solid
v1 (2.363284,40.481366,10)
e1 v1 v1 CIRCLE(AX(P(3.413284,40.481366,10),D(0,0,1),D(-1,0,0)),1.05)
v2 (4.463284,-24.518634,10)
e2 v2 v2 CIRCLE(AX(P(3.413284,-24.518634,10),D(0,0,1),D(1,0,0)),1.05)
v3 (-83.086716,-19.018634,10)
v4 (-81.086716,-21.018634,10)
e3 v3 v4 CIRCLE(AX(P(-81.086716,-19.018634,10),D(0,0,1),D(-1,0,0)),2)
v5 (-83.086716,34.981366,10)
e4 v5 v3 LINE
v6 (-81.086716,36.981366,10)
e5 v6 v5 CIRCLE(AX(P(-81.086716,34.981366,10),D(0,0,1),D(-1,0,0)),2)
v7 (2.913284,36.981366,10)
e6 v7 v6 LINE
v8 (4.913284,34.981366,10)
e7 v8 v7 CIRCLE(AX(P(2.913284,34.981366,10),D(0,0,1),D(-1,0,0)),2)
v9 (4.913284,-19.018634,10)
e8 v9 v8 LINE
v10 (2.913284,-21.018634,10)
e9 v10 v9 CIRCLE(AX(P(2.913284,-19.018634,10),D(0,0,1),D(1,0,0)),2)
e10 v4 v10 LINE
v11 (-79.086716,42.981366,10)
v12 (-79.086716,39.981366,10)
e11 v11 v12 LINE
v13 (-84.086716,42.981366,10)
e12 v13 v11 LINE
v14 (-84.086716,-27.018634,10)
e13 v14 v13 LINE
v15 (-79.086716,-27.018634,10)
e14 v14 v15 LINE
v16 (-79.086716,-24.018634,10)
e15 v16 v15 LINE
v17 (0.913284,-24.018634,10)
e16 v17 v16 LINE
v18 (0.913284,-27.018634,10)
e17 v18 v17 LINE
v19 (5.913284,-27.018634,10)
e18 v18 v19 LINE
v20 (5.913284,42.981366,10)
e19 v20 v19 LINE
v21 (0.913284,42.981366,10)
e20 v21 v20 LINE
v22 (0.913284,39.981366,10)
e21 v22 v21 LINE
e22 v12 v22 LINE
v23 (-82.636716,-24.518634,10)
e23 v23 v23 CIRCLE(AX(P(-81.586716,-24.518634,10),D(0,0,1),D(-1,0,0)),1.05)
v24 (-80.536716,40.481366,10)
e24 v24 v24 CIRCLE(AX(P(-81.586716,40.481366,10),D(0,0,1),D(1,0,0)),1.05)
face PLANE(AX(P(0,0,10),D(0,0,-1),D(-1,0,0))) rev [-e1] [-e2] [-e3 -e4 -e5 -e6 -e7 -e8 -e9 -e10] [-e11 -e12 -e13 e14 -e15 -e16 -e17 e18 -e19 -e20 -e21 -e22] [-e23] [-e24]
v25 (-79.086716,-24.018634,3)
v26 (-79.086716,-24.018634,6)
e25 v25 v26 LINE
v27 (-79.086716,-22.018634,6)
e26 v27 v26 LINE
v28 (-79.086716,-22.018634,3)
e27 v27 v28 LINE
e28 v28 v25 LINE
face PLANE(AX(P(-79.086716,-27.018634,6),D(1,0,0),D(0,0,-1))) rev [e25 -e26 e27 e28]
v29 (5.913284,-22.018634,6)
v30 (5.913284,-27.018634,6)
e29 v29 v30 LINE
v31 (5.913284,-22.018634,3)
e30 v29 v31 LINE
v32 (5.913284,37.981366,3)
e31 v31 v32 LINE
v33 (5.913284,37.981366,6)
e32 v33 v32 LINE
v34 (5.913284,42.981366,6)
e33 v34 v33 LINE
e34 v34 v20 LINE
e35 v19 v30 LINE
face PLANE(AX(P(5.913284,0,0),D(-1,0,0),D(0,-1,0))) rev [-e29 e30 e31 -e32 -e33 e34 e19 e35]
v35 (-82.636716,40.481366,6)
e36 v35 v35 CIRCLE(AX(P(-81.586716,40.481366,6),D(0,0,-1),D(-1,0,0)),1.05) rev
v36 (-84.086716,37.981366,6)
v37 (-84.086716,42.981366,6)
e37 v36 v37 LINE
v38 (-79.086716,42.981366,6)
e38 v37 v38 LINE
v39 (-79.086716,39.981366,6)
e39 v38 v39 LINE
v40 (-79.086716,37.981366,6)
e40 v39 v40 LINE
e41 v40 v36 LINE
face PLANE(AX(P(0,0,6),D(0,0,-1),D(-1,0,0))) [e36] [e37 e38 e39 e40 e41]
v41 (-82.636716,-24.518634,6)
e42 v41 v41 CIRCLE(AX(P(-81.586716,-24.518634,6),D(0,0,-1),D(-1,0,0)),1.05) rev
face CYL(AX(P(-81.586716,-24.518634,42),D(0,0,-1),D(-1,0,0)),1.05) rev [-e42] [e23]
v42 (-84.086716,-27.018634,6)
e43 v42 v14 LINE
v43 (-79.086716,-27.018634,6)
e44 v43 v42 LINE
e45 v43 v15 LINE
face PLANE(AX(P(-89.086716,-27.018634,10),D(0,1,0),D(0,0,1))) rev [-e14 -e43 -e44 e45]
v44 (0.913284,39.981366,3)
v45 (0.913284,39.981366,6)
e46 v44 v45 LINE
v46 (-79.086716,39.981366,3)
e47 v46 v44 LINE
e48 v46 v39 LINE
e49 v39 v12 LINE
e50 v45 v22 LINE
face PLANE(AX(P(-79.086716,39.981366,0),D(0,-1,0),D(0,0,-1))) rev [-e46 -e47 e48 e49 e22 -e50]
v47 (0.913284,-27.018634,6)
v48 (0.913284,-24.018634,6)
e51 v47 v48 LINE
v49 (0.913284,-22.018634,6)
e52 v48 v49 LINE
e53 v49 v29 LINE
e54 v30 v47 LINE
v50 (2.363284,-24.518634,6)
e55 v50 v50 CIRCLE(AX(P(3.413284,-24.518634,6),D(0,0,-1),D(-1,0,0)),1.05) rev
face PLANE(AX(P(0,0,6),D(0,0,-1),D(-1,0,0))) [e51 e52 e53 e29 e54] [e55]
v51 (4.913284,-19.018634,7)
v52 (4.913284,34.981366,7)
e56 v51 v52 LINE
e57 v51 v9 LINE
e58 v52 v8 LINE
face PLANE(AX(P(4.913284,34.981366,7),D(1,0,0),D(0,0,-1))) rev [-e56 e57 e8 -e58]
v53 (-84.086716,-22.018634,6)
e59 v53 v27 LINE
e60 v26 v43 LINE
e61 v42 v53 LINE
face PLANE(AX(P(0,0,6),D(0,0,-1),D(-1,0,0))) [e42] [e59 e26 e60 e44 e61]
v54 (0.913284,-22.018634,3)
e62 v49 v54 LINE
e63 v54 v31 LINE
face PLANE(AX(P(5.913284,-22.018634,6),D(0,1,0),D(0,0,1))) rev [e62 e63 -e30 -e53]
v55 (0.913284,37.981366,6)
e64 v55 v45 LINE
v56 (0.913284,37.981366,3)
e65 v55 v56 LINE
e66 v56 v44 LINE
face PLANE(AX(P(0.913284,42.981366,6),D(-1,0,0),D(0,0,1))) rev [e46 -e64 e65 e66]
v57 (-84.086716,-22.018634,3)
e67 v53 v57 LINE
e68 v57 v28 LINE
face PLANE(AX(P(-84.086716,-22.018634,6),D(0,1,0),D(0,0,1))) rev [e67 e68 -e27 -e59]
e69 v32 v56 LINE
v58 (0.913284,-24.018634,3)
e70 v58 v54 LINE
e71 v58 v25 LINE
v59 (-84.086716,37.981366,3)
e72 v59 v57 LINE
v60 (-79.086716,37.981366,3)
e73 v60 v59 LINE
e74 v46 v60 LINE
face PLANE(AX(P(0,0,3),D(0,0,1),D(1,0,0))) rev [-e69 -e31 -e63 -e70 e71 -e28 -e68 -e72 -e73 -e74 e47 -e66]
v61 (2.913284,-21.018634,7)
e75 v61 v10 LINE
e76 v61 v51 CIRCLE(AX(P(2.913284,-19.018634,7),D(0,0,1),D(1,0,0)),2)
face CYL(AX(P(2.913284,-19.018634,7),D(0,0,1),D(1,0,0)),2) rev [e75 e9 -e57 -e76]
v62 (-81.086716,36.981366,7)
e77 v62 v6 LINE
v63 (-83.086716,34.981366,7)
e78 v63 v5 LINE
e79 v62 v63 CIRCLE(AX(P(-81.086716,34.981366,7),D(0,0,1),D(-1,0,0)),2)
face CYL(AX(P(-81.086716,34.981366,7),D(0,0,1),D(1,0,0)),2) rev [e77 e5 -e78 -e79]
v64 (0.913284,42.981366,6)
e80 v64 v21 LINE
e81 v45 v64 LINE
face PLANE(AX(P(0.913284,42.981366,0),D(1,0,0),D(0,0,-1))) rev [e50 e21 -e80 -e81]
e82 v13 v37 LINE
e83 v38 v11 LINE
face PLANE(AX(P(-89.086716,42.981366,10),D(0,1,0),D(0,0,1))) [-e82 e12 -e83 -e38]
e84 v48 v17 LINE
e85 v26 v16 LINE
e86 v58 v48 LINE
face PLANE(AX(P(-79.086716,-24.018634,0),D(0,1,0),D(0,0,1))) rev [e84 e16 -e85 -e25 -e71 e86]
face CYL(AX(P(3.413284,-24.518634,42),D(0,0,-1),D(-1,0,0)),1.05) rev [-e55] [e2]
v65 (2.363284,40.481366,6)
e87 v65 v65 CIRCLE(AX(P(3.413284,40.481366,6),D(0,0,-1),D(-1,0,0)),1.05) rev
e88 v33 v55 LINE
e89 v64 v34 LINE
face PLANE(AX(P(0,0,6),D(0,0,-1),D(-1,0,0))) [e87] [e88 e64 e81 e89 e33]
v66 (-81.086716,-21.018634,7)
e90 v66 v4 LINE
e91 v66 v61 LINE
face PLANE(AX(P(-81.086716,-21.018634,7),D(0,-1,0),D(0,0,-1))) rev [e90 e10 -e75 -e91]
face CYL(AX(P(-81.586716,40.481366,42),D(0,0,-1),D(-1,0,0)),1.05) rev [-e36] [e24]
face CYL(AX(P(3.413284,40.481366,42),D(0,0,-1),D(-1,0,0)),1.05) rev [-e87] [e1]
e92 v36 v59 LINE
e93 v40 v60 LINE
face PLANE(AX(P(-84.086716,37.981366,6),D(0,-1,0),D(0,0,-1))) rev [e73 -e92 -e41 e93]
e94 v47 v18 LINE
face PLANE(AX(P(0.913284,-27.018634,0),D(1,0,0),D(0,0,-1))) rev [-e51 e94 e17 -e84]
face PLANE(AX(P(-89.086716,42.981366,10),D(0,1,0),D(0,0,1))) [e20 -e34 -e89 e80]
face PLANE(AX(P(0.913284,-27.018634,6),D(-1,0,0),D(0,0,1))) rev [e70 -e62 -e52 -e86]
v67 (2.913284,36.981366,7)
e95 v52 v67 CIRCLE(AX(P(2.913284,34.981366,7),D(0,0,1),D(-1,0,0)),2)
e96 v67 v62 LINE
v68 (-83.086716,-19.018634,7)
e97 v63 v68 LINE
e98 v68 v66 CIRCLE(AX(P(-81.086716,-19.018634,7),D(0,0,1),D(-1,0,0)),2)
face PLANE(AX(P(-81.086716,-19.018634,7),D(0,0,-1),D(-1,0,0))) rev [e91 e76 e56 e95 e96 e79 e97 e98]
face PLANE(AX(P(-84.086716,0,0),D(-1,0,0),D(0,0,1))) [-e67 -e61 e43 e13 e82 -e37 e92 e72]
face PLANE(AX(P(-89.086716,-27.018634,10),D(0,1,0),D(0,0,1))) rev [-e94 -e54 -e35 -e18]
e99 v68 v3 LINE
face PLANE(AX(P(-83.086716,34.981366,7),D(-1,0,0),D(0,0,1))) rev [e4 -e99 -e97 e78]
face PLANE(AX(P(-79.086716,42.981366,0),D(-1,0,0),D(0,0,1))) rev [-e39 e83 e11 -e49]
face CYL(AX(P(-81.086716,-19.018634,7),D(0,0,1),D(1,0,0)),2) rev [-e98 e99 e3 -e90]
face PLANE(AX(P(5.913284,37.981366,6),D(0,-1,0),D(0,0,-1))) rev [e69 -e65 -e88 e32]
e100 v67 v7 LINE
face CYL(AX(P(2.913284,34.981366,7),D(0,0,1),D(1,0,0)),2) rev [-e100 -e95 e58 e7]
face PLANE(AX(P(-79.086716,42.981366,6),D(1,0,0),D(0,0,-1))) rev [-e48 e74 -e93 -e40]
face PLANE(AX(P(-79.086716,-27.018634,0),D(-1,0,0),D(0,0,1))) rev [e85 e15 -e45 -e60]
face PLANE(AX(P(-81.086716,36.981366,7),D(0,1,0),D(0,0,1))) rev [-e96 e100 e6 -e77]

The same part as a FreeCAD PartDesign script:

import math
import FreeCAD as App
import Part
import Sketcher
Q = App.Units.Quantity


def add_polygon(sketch, points):
    """Adds a closed chain of lines whose ends are joined by coincident constraints."""
    first, n = sketch.GeometryCount, len(points)
    for a, b in zip(points, points[1:] + points[:1]):
        sketch.addGeometry(Part.LineSegment(App.Vector(*a, 0), App.Vector(*b, 0)), False)
    for i in range(n):
        sketch.addConstraint(Sketcher.Constraint("Coincident", first + i, 2, first + (i + 1) % n, 1))

doc = App.newDocument("Part")
body = doc.addObject("PartDesign::Body", "Body")

# Sketch on XY plane
sketch1 = body.newObject("Sketcher::SketchObject", "Sketch")
sketch1.AttachmentSupport = (doc.getObject("XY_Plane"), [""])
sketch1.MapMode = "FlatFace"
add_polygon(sketch1, [(-89.086716, 42.981366), (-89.086716, -27.018634), (10.913284, -27.018634), (10.913284, 42.981366)])  # lines 0-3
sketch1.addConstraint(Sketcher.Constraint("Vertical", 0))
sketch1.addConstraint(Sketcher.Constraint("Horizontal", 1))
sketch1.addConstraint(Sketcher.Constraint("Vertical", 2))
sketch1.addConstraint(Sketcher.Constraint("Horizontal", 3))
sketch1.addConstraint(Sketcher.Constraint("DistanceX", 1, 1, 1, 2, Q("100 mm")))
sketch1.addConstraint(Sketcher.Constraint("DistanceY", 0, 2, 0, 1, Q("70 mm")))
sketch1.addConstraint(Sketcher.Constraint("DistanceX", 0, 2, -1, 1, Q("89.086716 mm")))
sketch1.addConstraint(Sketcher.Constraint("DistanceY", 0, 2, -1, 1, Q("27.018634 mm")))
pad1 = body.newObject("PartDesign::Pad", "Pad")
pad1.Profile = sketch1
pad1.Length = 10

# Sketch on XY plane
sketch2 = body.newObject("Sketcher::SketchObject", "Sketch001")
sketch2.AttachmentSupport = (doc.getObject("XY_Plane"), [""])
sketch2.MapMode = "FlatFace"
sketch2.AttachmentOffset = App.Placement(App.Vector(0, 0, 10), App.Rotation())
add_polygon(sketch2, [(0.913284, 42.981366), (0.913284, 37.981366), (5.913284, 37.981366), (5.913284, 42.981366)])  # lines 0-3
add_polygon(sketch2, [(-84.086716, 42.981366), (-84.086716, 37.981366), (-79.086716, 37.981366), (-79.086716, 42.981366)])  # lines 4-7
add_polygon(sketch2, [(-84.086716, -22.018634), (-84.086716, -27.018634), (-79.086716, -27.018634), (-79.086716, -22.018634)])  # lines 8-11
add_polygon(sketch2, [(0.913284, -22.018634), (0.913284, -27.018634), (5.913284, -27.018634), (5.913284, -22.018634)])  # lines 12-15
sketch2.addConstraint(Sketcher.Constraint("Vertical", 0))
sketch2.addConstraint(Sketcher.Constraint("Horizontal", 1))
sketch2.addConstraint(Sketcher.Constraint("Vertical", 2))
sketch2.addConstraint(Sketcher.Constraint("Horizontal", 3))
sketch2.addConstraint(Sketcher.Constraint("Vertical", 4))
sketch2.addConstraint(Sketcher.Constraint("Horizontal", 5))
sketch2.addConstraint(Sketcher.Constraint("Vertical", 6))
sketch2.addConstraint(Sketcher.Constraint("Horizontal", 7))
sketch2.addConstraint(Sketcher.Constraint("Vertical", 8))
sketch2.addConstraint(Sketcher.Constraint("Horizontal", 9))
sketch2.addConstraint(Sketcher.Constraint("Vertical", 10))
sketch2.addConstraint(Sketcher.Constraint("Horizontal", 11))
sketch2.addConstraint(Sketcher.Constraint("Vertical", 12))
sketch2.addConstraint(Sketcher.Constraint("Horizontal", 13))
sketch2.addConstraint(Sketcher.Constraint("Vertical", 14))
sketch2.addConstraint(Sketcher.Constraint("Horizontal", 15))
sketch2.addConstraint(Sketcher.Constraint("Horizontal", 1, 2, 4, 2))
sketch2.addConstraint(Sketcher.Constraint("Horizontal", 3, 2, 6, 2))
sketch2.addConstraint(Sketcher.Constraint("Horizontal", 9, 2, 12, 2))
sketch2.addConstraint(Sketcher.Constraint("Horizontal", 11, 2, 14, 2))
sketch2.addConstraint(Sketcher.Constraint("Vertical", 7, 2, 8, 2))
sketch2.addConstraint(Sketcher.Constraint("Vertical", 6, 2, 9, 2))
sketch2.addConstraint(Sketcher.Constraint("Vertical", 3, 2, 12, 2))
sketch2.addConstraint(Sketcher.Constraint("Vertical", 2, 2, 13, 2))
sketch2.addConstraint(Sketcher.Constraint("Equal", 3, 5))
sketch2.addConstraint(Sketcher.Constraint("Equal", 15, 0))
sketch2.addConstraint(Sketcher.Constraint("Equal", 6, 8))
sketch2.addConstraint(Sketcher.Constraint("DistanceX", 1, 1, 1, 2, Q("5 mm")))
sketch2.addConstraint(Sketcher.Constraint("DistanceX", 4, 2, 0, 2, Q("85 mm")))
sketch2.addConstraint(Sketcher.Constraint("DistanceY", 8, 2, 4, 2, Q("65 mm")))
sketch2.addConstraint(Sketcher.Constraint("DistanceX", -1, 1, 0, 2, Q("0.913284 mm")))
sketch2.addConstraint(Sketcher.Constraint("DistanceY", -1, 1, 0, 2, Q("37.981366 mm")))
pocket1 = body.newObject("PartDesign::Pocket", "Pocket")
pocket1.Profile = sketch2
pocket1.Length = 5

# Sketch on XY plane
sketch3 = body.newObject("Sketcher::SketchObject", "Sketch002")
sketch3.AttachmentSupport = (doc.getObject("XY_Plane"), [""])
sketch3.MapMode = "FlatFace"
add_polygon(sketch3, [(-79.086716, 42.981366), (-79.086716, 37.981366), (-84.086716, 37.981366), (-84.086716, 42.981366)])  # lines 0-3
add_polygon(sketch3, [(5.913284, 42.981366), (5.913284, 37.981366), (0.913284, 37.981366), (0.913284, 42.981366)])  # lines 4-7
add_polygon(sketch3, [(-79.086716, -22.018634), (-79.086716, -27.018634), (-84.086716, -27.018634), (-84.086716, -22.018634)])  # lines 8-11
add_polygon(sketch3, [(5.913284, -22.018634), (5.913284, -27.018634), (0.913284, -27.018634), (0.913284, -22.018634)])  # lines 12-15
sketch3.addConstraint(Sketcher.Constraint("Vertical", 0))
sketch3.addConstraint(Sketcher.Constraint("Horizontal", 1))
sketch3.addConstraint(Sketcher.Constraint("Vertical", 2))
sketch3.addConstraint(Sketcher.Constraint("Horizontal", 3))
sketch3.addConstraint(Sketcher.Constraint("Vertical", 4))
sketch3.addConstraint(Sketcher.Constraint("Horizontal", 5))
sketch3.addConstraint(Sketcher.Constraint("Vertical", 6))
sketch3.addConstraint(Sketcher.Constraint("Horizontal", 7))
sketch3.addConstraint(Sketcher.Constraint("Vertical", 8))
sketch3.addConstraint(Sketcher.Constraint("Horizontal", 9))
sketch3.addConstraint(Sketcher.Constraint("Vertical", 10))
sketch3.addConstraint(Sketcher.Constraint("Horizontal", 11))
sketch3.addConstraint(Sketcher.Constraint("Vertical", 12))
sketch3.addConstraint(Sketcher.Constraint("Horizontal", 13))
sketch3.addConstraint(Sketcher.Constraint("Vertical", 14))
sketch3.addConstraint(Sketcher.Constraint("Horizontal", 15))
sketch3.addConstraint(Sketcher.Constraint("Horizontal", 1, 2, 4, 2))
sketch3.addConstraint(Sketcher.Constraint("Horizontal", 3, 2, 6, 2))
sketch3.addConstraint(Sketcher.Constraint("Horizontal", 9, 2, 12, 2))
sketch3.addConstraint(Sketcher.Constraint("Horizontal", 11, 2, 14, 2))
sketch3.addConstraint(Sketcher.Constraint("Vertical", 3, 2, 8, 2))
sketch3.addConstraint(Sketcher.Constraint("Vertical", 2, 2, 9, 2))
sketch3.addConstraint(Sketcher.Constraint("Vertical", 7, 2, 12, 2))
sketch3.addConstraint(Sketcher.Constraint("Vertical", 6, 2, 13, 2))
sketch3.addConstraint(Sketcher.Constraint("Equal", 3, 5))
sketch3.addConstraint(Sketcher.Constraint("Equal", 15, 0))
sketch3.addConstraint(Sketcher.Constraint("Equal", 6, 8))
sketch3.addConstraint(Sketcher.Constraint("DistanceX", 1, 2, 1, 1, Q("5 mm")))
sketch3.addConstraint(Sketcher.Constraint("DistanceX", 0, 2, 4, 2, Q("85 mm")))
sketch3.addConstraint(Sketcher.Constraint("DistanceY", 8, 2, 0, 2, Q("65 mm")))
sketch3.addConstraint(Sketcher.Constraint("DistanceX", 0, 2, -1, 1, Q("79.086716 mm")))
sketch3.addConstraint(Sketcher.Constraint("DistanceY", -1, 1, 0, 2, Q("37.981366 mm")))
pocket2 = body.newObject("PartDesign::Pocket", "Pocket001")
pocket2.Profile = sketch3
pocket2.Length = 3
pocket2.Reversed = True

# Sketch on XY plane
sketch4 = body.newObject("Sketcher::SketchObject", "Sketch003")
sketch4.AttachmentSupport = (doc.getObject("XY_Plane"), [""])
sketch4.MapMode = "FlatFace"
sketch4.addGeometry(Part.Circle(App.Vector(3.413284, 40.481366, 0), App.Vector(0, 0, 1), 1.05), False)
sketch4.addGeometry(Part.Circle(App.Vector(-81.586716, 40.481366, 0), App.Vector(0, 0, 1), 1.05), False)
sketch4.addGeometry(Part.Circle(App.Vector(-81.586716, -24.518634, 0), App.Vector(0, 0, 1), 1.05), False)
sketch4.addGeometry(Part.Circle(App.Vector(3.413284, -24.518634, 0), App.Vector(0, 0, 1), 1.05), False)
sketch4.addConstraint(Sketcher.Constraint("Equal", 0, 1))
sketch4.addConstraint(Sketcher.Constraint("Equal", 1, 2))
sketch4.addConstraint(Sketcher.Constraint("Equal", 2, 3))
sketch4.addConstraint(Sketcher.Constraint("Horizontal", 0, 3, 1, 3))
sketch4.addConstraint(Sketcher.Constraint("Horizontal", 2, 3, 3, 3))
sketch4.addConstraint(Sketcher.Constraint("Vertical", 1, 3, 2, 3))
sketch4.addConstraint(Sketcher.Constraint("Vertical", 0, 3, 3, 3))
sketch4.addConstraint(Sketcher.Constraint("Diameter", 0, Q("2.1 mm")))
sketch4.addConstraint(Sketcher.Constraint("DistanceX", 1, 3, 0, 3, Q("85 mm")))
sketch4.addConstraint(Sketcher.Constraint("DistanceY", 2, 3, 1, 3, Q("65 mm")))
sketch4.addConstraint(Sketcher.Constraint("DistanceX", -1, 1, 0, 3, Q("3.413284 mm")))
sketch4.addConstraint(Sketcher.Constraint("DistanceY", -1, 1, 0, 3, Q("40.481366 mm")))
pocket3 = body.newObject("PartDesign::Pocket", "Pocket002")
pocket3.Profile = sketch4
pocket3.Length = 42
pocket3.Reversed = True

# Sketch on XY plane
sketch5 = body.newObject("Sketcher::SketchObject", "Sketch004")
sketch5.AttachmentSupport = (doc.getObject("XY_Plane"), [""])
sketch5.MapMode = "FlatFace"
add_polygon(sketch5, [(-89.086716, 42.981366), (-89.086716, -27.018634), (10.913284, -27.018634), (10.913284, 42.981366)])  # lines 0-3
sketch5.addConstraint(Sketcher.Constraint("Vertical", 0))
sketch5.addConstraint(Sketcher.Constraint("Horizontal", 1))
sketch5.addConstraint(Sketcher.Constraint("Vertical", 2))
sketch5.addConstraint(Sketcher.Constraint("Horizontal", 3))
sketch5.addConstraint(Sketcher.Constraint("DistanceX", 1, 1, 1, 2, Q("100 mm")))
sketch5.addConstraint(Sketcher.Constraint("DistanceY", 0, 2, 0, 1, Q("70 mm")))
sketch5.addConstraint(Sketcher.Constraint("DistanceX", 0, 2, -1, 1, Q("89.086716 mm")))
sketch5.addConstraint(Sketcher.Constraint("DistanceY", 0, 2, -1, 1, Q("27.018634 mm")))
pocket4 = body.newObject("PartDesign::Pocket", "Pocket003")
pocket4.Profile = sketch5
pocket4.Length = 3
pocket4.Reversed = True

# Sketch on YZ plane
sketch6 = body.newObject("Sketcher::SketchObject", "Sketch005")
sketch6.AttachmentSupport = (doc.getObject("YZ_Plane"), [""])
sketch6.MapMode = "FlatFace"
sketch6.AttachmentOffset = App.Placement(App.Vector(0, 0, 10.913284), App.Rotation())
add_polygon(sketch6, [(42.981366, 10), (-27.018634, 10), (-27.018634, 3), (42.981366, 3)])  # lines 0-3
sketch6.addConstraint(Sketcher.Constraint("Horizontal", 0))
sketch6.addConstraint(Sketcher.Constraint("Vertical", 1))
sketch6.addConstraint(Sketcher.Constraint("Horizontal", 2))
sketch6.addConstraint(Sketcher.Constraint("Vertical", 3))
sketch6.addConstraint(Sketcher.Constraint("DistanceX", 0, 2, 0, 1, Q("70 mm")))
sketch6.addConstraint(Sketcher.Constraint("DistanceY", 1, 2, 1, 1, Q("7 mm")))
sketch6.addConstraint(Sketcher.Constraint("DistanceY", -1, 1, 0, 2, Q("10 mm")))
sketch6.addConstraint(Sketcher.Constraint("DistanceX", 0, 2, -1, 1, Q("27.018634 mm")))
pocket5 = body.newObject("PartDesign::Pocket", "Pocket004")
pocket5.Profile = sketch6
pocket5.Length = 5

# Sketch on YZ plane
sketch7 = body.newObject("Sketcher::SketchObject", "Sketch006")
sketch7.AttachmentSupport = (doc.getObject("YZ_Plane"), [""])
sketch7.MapMode = "FlatFace"
sketch7.AttachmentOffset = App.Placement(App.Vector(0, 0, -89.086716), App.Rotation())
add_polygon(sketch7, [(42.981366, 3), (-27.018634, 3), (-27.018634, 10), (42.981366, 10)])  # lines 0-3
sketch7.addConstraint(Sketcher.Constraint("Horizontal", 0))
sketch7.addConstraint(Sketcher.Constraint("Vertical", 1))
sketch7.addConstraint(Sketcher.Constraint("Horizontal", 2))
sketch7.addConstraint(Sketcher.Constraint("Vertical", 3))
sketch7.addConstraint(Sketcher.Constraint("DistanceX", 0, 2, 0, 1, Q("70 mm")))
sketch7.addConstraint(Sketcher.Constraint("DistanceY", 1, 1, 1, 2, Q("7 mm")))
sketch7.addConstraint(Sketcher.Constraint("DistanceY", -1, 1, 0, 2, Q("3 mm")))
sketch7.addConstraint(Sketcher.Constraint("DistanceX", 0, 2, -1, 1, Q("27.018634 mm")))
pocket6 = body.newObject("PartDesign::Pocket", "Pocket005")
pocket6.Profile = sketch7
pocket6.Length = 5
pocket6.Reversed = True

# Sketch on XY plane
sketch8 = body.newObject("Sketcher::SketchObject", "Sketch007")
sketch8.AttachmentSupport = (doc.getObject("XY_Plane"), [""])
sketch8.MapMode = "FlatFace"
sketch8.AttachmentOffset = App.Placement(App.Vector(0, 0, 10), App.Rotation())
sketch8.addGeometry(Part.LineSegment(App.Vector(-83.086716, 34.981366, 0), App.Vector(-83.086716, -19.018634, 0)), False)  # 0
sketch8.addGeometry(Part.ArcOfCircle(Part.Circle(App.Vector(-81.086716, -19.018634, 0), App.Vector(0, 0, 1), 2), math.radians(180), math.radians(270)), False)  # 1
sketch8.addGeometry(Part.LineSegment(App.Vector(-81.086716, -21.018634, 0), App.Vector(2.913284, -21.018634, 0)), False)  # 2
sketch8.addGeometry(Part.ArcOfCircle(Part.Circle(App.Vector(2.913284, -19.018634, 0), App.Vector(0, 0, 1), 2), math.radians(-90), math.radians(0)), False)  # 3
sketch8.addGeometry(Part.LineSegment(App.Vector(4.913284, -19.018634, 0), App.Vector(4.913284, 34.981366, 0)), False)  # 4
sketch8.addGeometry(Part.ArcOfCircle(Part.Circle(App.Vector(2.913284, 34.981366, 0), App.Vector(0, 0, 1), 2), math.radians(0), math.radians(90)), False)  # 5
sketch8.addGeometry(Part.LineSegment(App.Vector(2.913284, 36.981366, 0), App.Vector(-81.086716, 36.981366, 0)), False)  # 6
sketch8.addGeometry(Part.ArcOfCircle(Part.Circle(App.Vector(-81.086716, 34.981366, 0), App.Vector(0, 0, 1), 2), math.radians(90), math.radians(180)), False)  # 7
add_polygon(sketch8, [(1.913284, -18.018634), (-80.086716, -18.018634), (-80.086716, 33.981366), (1.913284, 33.981366)])  # lines 8-11
sketch8.addConstraint(Sketcher.Constraint("Tangent", 0, 2, 1, 1))
sketch8.addConstraint(Sketcher.Constraint("Tangent", 1, 2, 2, 1))
sketch8.addConstraint(Sketcher.Constraint("Tangent", 2, 2, 3, 1))
sketch8.addConstraint(Sketcher.Constraint("Tangent", 3, 2, 4, 1))
sketch8.addConstraint(Sketcher.Constraint("Tangent", 4, 2, 5, 1))
sketch8.addConstraint(Sketcher.Constraint("Tangent", 5, 2, 6, 1))
sketch8.addConstraint(Sketcher.Constraint("Tangent", 6, 2, 7, 1))
sketch8.addConstraint(Sketcher.Constraint("Tangent", 7, 2, 0, 1))
sketch8.addConstraint(Sketcher.Constraint("Vertical", 0))
sketch8.addConstraint(Sketcher.Constraint("Horizontal", 2))
sketch8.addConstraint(Sketcher.Constraint("Vertical", 4))
sketch8.addConstraint(Sketcher.Constraint("Horizontal", 6))
sketch8.addConstraint(Sketcher.Constraint("Horizontal", 8))
sketch8.addConstraint(Sketcher.Constraint("Vertical", 9))
sketch8.addConstraint(Sketcher.Constraint("Horizontal", 10))
sketch8.addConstraint(Sketcher.Constraint("Vertical", 11))
sketch8.addConstraint(Sketcher.Constraint("Equal", 1, 3))
sketch8.addConstraint(Sketcher.Constraint("Equal", 3, 5))
sketch8.addConstraint(Sketcher.Constraint("Equal", 5, 7))
sketch8.addConstraint(Sketcher.Constraint("Radius", 1, Q("2 mm")))
sketch8.addConstraint(Sketcher.Constraint("DistanceX", 2, 1, 2, 2, Q("84 mm")))
sketch8.addConstraint(Sketcher.Constraint("DistanceX", 8, 2, 8, 1, Q("82 mm")))
sketch8.addConstraint(Sketcher.Constraint("DistanceY", 0, 2, 0, 1, Q("54 mm")))
sketch8.addConstraint(Sketcher.Constraint("DistanceY", 9, 1, 9, 2, Q("52 mm")))
sketch8.addConstraint(Sketcher.Constraint("DistanceX", 1, 3, 8, 2, Q("1 mm")))
sketch8.addConstraint(Sketcher.Constraint("DistanceY", 1, 3, 8, 2, Q("1 mm")))
sketch8.addConstraint(Sketcher.Constraint("DistanceX", 1, 3, -1, 1, Q("81.086716 mm")))
sketch8.addConstraint(Sketcher.Constraint("DistanceY", 1, 3, -1, 1, Q("19.018634 mm")))
pocket7 = body.newObject("PartDesign::Pocket", "Pocket006")
pocket7.Profile = sketch8
pocket7.Length = 3

# Sketch on XY plane
sketch9 = body.newObject("Sketcher::SketchObject", "Sketch008")
sketch9.AttachmentSupport = (doc.getObject("XY_Plane"), [""])
sketch9.MapMode = "FlatFace"
sketch9.AttachmentOffset = App.Placement(App.Vector(0, 0, 5), App.Rotation())
add_polygon(sketch9, [(-84.086716, 42.981366), (-84.086716, 37.981366), (-79.086716, 37.981366), (-79.086716, 42.981366)])  # lines 0-3
sketch9.addGeometry(Part.Circle(App.Vector(-81.586716, 40.481366, 0), App.Vector(0, 0, 1), 1.05), False)  # 4
add_polygon(sketch9, [(0.913284, 42.981366), (0.913284, 37.981366), (5.913284, 37.981366), (5.913284, 42.981366)])  # lines 5-8
sketch9.addGeometry(Part.Circle(App.Vector(3.413284, 40.481366, 0), App.Vector(0, 0, 1), 1.05), False)  # 9
add_polygon(sketch9, [(0.913284, -22.018634), (0.913284, -27.018634), (5.913284, -27.018634), (5.913284, -22.018634)])  # lines 10-13
sketch9.addGeometry(Part.Circle(App.Vector(3.413284, -24.518634, 0), App.Vector(0, 0, 1), 1.05), False)  # 14
add_polygon(sketch9, [(-84.086716, -22.018634), (-84.086716, -27.018634), (-79.086716, -27.018634), (-79.086716, -22.018634)])  # lines 15-18
sketch9.addGeometry(Part.Circle(App.Vector(-81.586716, -24.518634, 0), App.Vector(0, 0, 1), 1.05), False)  # 19
sketch9.addConstraint(Sketcher.Constraint("Vertical", 0))
sketch9.addConstraint(Sketcher.Constraint("Horizontal", 1))
sketch9.addConstraint(Sketcher.Constraint("Vertical", 2))
sketch9.addConstraint(Sketcher.Constraint("Horizontal", 3))
sketch9.addConstraint(Sketcher.Constraint("Vertical", 5))
sketch9.addConstraint(Sketcher.Constraint("Horizontal", 6))
sketch9.addConstraint(Sketcher.Constraint("Vertical", 7))
sketch9.addConstraint(Sketcher.Constraint("Horizontal", 8))
sketch9.addConstraint(Sketcher.Constraint("Vertical", 10))
sketch9.addConstraint(Sketcher.Constraint("Horizontal", 11))
sketch9.addConstraint(Sketcher.Constraint("Vertical", 12))
sketch9.addConstraint(Sketcher.Constraint("Horizontal", 13))
sketch9.addConstraint(Sketcher.Constraint("Vertical", 15))
sketch9.addConstraint(Sketcher.Constraint("Horizontal", 16))
sketch9.addConstraint(Sketcher.Constraint("Vertical", 17))
sketch9.addConstraint(Sketcher.Constraint("Horizontal", 18))
sketch9.addConstraint(Sketcher.Constraint("Equal", 4, 9))
sketch9.addConstraint(Sketcher.Constraint("Equal", 9, 14))
sketch9.addConstraint(Sketcher.Constraint("Equal", 14, 19))
sketch9.addConstraint(Sketcher.Constraint("Horizontal", 4, 3, 9, 3))
sketch9.addConstraint(Sketcher.Constraint("Horizontal", 14, 3, 19, 3))
sketch9.addConstraint(Sketcher.Constraint("Horizontal", 1, 2, 5, 2))
sketch9.addConstraint(Sketcher.Constraint("Horizontal", 3, 2, 7, 2))
sketch9.addConstraint(Sketcher.Constraint("Horizontal", 11, 2, 15, 2))
sketch9.addConstraint(Sketcher.Constraint("Horizontal", 13, 2, 17, 2))
sketch9.addConstraint(Sketcher.Constraint("Vertical", 9, 3, 14, 3))
sketch9.addConstraint(Sketcher.Constraint("Vertical", 4, 3, 19, 3))
sketch9.addConstraint(Sketcher.Constraint("Vertical", 8, 2, 10, 2))
sketch9.addConstraint(Sketcher.Constraint("Vertical", 7, 2, 11, 2))
sketch9.addConstraint(Sketcher.Constraint("Vertical", 3, 2, 15, 2))
sketch9.addConstraint(Sketcher.Constraint("Vertical", 2, 2, 16, 2))
sketch9.addConstraint(Sketcher.Constraint("Equal", 3, 6))
sketch9.addConstraint(Sketcher.Constraint("Equal", 18, 0))
sketch9.addConstraint(Sketcher.Constraint("Equal", 7, 10))
sketch9.addConstraint(Sketcher.Constraint("Diameter", 4, Q("2.1 mm")))
sketch9.addConstraint(Sketcher.Constraint("DistanceX", 1, 1, 1, 2, Q("5 mm")))
sketch9.addConstraint(Sketcher.Constraint("DistanceX", 4, 3, 9, 3, Q("85 mm")))
sketch9.addConstraint(Sketcher.Constraint("DistanceY", 14, 3, 9, 3, Q("65 mm")))
sketch9.addConstraint(Sketcher.Constraint("DistanceX", 1, 2, 5, 2, Q("80 mm")))
sketch9.addConstraint(Sketcher.Constraint("DistanceY", 10, 2, 5, 2, Q("65 mm")))
sketch9.addConstraint(Sketcher.Constraint("DistanceX", 0, 2, 4, 3, Q("2.5 mm")))
sketch9.addConstraint(Sketcher.Constraint("DistanceY", 0, 2, 4, 3, Q("2.5 mm")))
sketch9.addConstraint(Sketcher.Constraint("DistanceX", 4, 3, -1, 1, Q("81.586716 mm")))
sketch9.addConstraint(Sketcher.Constraint("DistanceY", -1, 1, 4, 3, Q("40.481366 mm")))
pad2 = body.newObject("PartDesign::Pad", "Pad001")
pad2.Profile = sketch9
pad2.Length = 5

# Sketch on XY plane
sketch10 = body.newObject("Sketcher::SketchObject", "Sketch009")
sketch10.AttachmentSupport = (doc.getObject("XY_Plane"), [""])
sketch10.MapMode = "FlatFace"
sketch10.AttachmentOffset = App.Placement(App.Vector(0, 0, 10), App.Rotation())
add_polygon(sketch10, [(-79.086716, 42.981366), (-79.086716, 39.981366), (0.913284, 39.981366), (0.913284, 42.981366)])  # lines 0-3
add_polygon(sketch10, [(-79.086716, -24.018634), (-79.086716, -27.018634), (0.913284, -27.018634), (0.913284, -24.018634)])  # lines 4-7
sketch10.addConstraint(Sketcher.Constraint("Vertical", 0))
sketch10.addConstraint(Sketcher.Constraint("Horizontal", 1))
sketch10.addConstraint(Sketcher.Constraint("Vertical", 2))
sketch10.addConstraint(Sketcher.Constraint("Horizontal", 3))
sketch10.addConstraint(Sketcher.Constraint("Vertical", 4))
sketch10.addConstraint(Sketcher.Constraint("Horizontal", 5))
sketch10.addConstraint(Sketcher.Constraint("Vertical", 6))
sketch10.addConstraint(Sketcher.Constraint("Horizontal", 7))
sketch10.addConstraint(Sketcher.Constraint("Vertical", 3, 2, 4, 2))
sketch10.addConstraint(Sketcher.Constraint("Vertical", 2, 2, 5, 2))
sketch10.addConstraint(Sketcher.Constraint("Equal", 2, 4))
sketch10.addConstraint(Sketcher.Constraint("DistanceX", 1, 1, 1, 2, Q("80 mm")))
sketch10.addConstraint(Sketcher.Constraint("DistanceY", 0, 2, 0, 1, Q("3 mm")))
sketch10.addConstraint(Sketcher.Constraint("DistanceY", 4, 2, 0, 2, Q("67 mm")))
sketch10.addConstraint(Sketcher.Constraint("DistanceX", 0, 2, -1, 1, Q("79.086716 mm")))
sketch10.addConstraint(Sketcher.Constraint("DistanceY", -1, 1, 0, 2, Q("39.981366 mm")))
pocket8 = body.newObject("PartDesign::Pocket", "Pocket007")
pocket8.Profile = sketch10
pocket8.Length = 10

# Sketch on XY plane
sketch11 = body.newObject("Sketcher::SketchObject", "Sketch010")
sketch11.AttachmentSupport = (doc.getObject("XY_Plane"), [""])
sketch11.MapMode = "FlatFace"
sketch11.AttachmentOffset = App.Placement(App.Vector(0, 0, 10), App.Rotation())
add_polygon(sketch11, [(-80.086716, 33.981366), (-80.086716, -18.018634), (1.913284, -18.018634), (1.913284, 33.981366)])  # lines 0-3
sketch11.addConstraint(Sketcher.Constraint("Vertical", 0))
sketch11.addConstraint(Sketcher.Constraint("Horizontal", 1))
sketch11.addConstraint(Sketcher.Constraint("Vertical", 2))
sketch11.addConstraint(Sketcher.Constraint("Horizontal", 3))
sketch11.addConstraint(Sketcher.Constraint("DistanceX", 1, 1, 1, 2, Q("82 mm")))
sketch11.addConstraint(Sketcher.Constraint("DistanceY", 0, 2, 0, 1, Q("52 mm")))
sketch11.addConstraint(Sketcher.Constraint("DistanceX", 0, 2, -1, 1, Q("80.086716 mm")))
sketch11.addConstraint(Sketcher.Constraint("DistanceY", 0, 2, -1, 1, Q("18.018634 mm")))
pocket9 = body.newObject("PartDesign::Pocket", "Pocket008")
pocket9.Profile = sketch11
pocket9.Length = 3

# Sketch on XY plane
sketch12 = body.newObject("Sketcher::SketchObject", "Sketch011")
sketch12.AttachmentSupport = (doc.getObject("XY_Plane"), [""])
sketch12.MapMode = "FlatFace"
sketch12.AttachmentOffset = App.Placement(App.Vector(0, 0, 3), App.Rotation())
add_polygon(sketch12, [(-79.086716, 42.981366), (-79.086716, 37.981366), (-84.086716, 37.981366), (-84.086716, 42.981366)])  # lines 0-3
add_polygon(sketch12, [(5.913284, 42.981366), (5.913284, 37.981366), (0.913284, 37.981366), (0.913284, 42.981366)])  # lines 4-7
add_polygon(sketch12, [(-79.086716, -22.018634), (-79.086716, -27.018634), (-84.086716, -27.018634), (-84.086716, -22.018634)])  # lines 8-11
add_polygon(sketch12, [(5.913284, -22.018634), (5.913284, -27.018634), (0.913284, -27.018634), (0.913284, -22.018634)])  # lines 12-15
sketch12.addConstraint(Sketcher.Constraint("Vertical", 0))
sketch12.addConstraint(Sketcher.Constraint("Horizontal", 1))
sketch12.addConstraint(Sketcher.Constraint("Vertical", 2))
sketch12.addConstraint(Sketcher.Constraint("Horizontal", 3))
sketch12.addConstraint(Sketcher.Constraint("Vertical", 4))
sketch12.addConstraint(Sketcher.Constraint("Horizontal", 5))
sketch12.addConstraint(Sketcher.Constraint("Vertical", 6))
sketch12.addConstraint(Sketcher.Constraint("Horizontal", 7))
sketch12.addConstraint(Sketcher.Constraint("Vertical", 8))
sketch12.addConstraint(Sketcher.Constraint("Horizontal", 9))
sketch12.addConstraint(Sketcher.Constraint("Vertical", 10))
sketch12.addConstraint(Sketcher.Constraint("Horizontal", 11))
sketch12.addConstraint(Sketcher.Constraint("Vertical", 12))
sketch12.addConstraint(Sketcher.Constraint("Horizontal", 13))
sketch12.addConstraint(Sketcher.Constraint("Vertical", 14))
sketch12.addConstraint(Sketcher.Constraint("Horizontal", 15))
sketch12.addConstraint(Sketcher.Constraint("Horizontal", 1, 2, 4, 2))
sketch12.addConstraint(Sketcher.Constraint("Horizontal", 3, 2, 6, 2))
sketch12.addConstraint(Sketcher.Constraint("Horizontal", 9, 2, 12, 2))
sketch12.addConstraint(Sketcher.Constraint("Horizontal", 11, 2, 14, 2))
sketch12.addConstraint(Sketcher.Constraint("Vertical", 3, 2, 8, 2))
sketch12.addConstraint(Sketcher.Constraint("Vertical", 2, 2, 9, 2))
sketch12.addConstraint(Sketcher.Constraint("Vertical", 7, 2, 12, 2))
sketch12.addConstraint(Sketcher.Constraint("Vertical", 6, 2, 13, 2))
sketch12.addConstraint(Sketcher.Constraint("Equal", 3, 5))
sketch12.addConstraint(Sketcher.Constraint("Equal", 15, 0))
sketch12.addConstraint(Sketcher.Constraint("Equal", 6, 8))
sketch12.addConstraint(Sketcher.Constraint("DistanceX", 1, 2, 1, 1, Q("5 mm")))
sketch12.addConstraint(Sketcher.Constraint("DistanceX", 0, 2, 4, 2, Q("85 mm")))
sketch12.addConstraint(Sketcher.Constraint("DistanceY", 8, 2, 0, 2, Q("65 mm")))
sketch12.addConstraint(Sketcher.Constraint("DistanceX", 0, 2, -1, 1, Q("79.086716 mm")))
sketch12.addConstraint(Sketcher.Constraint("DistanceY", -1, 1, 0, 2, Q("37.981366 mm")))
pocket10 = body.newObject("PartDesign::Pocket", "Pocket009")
pocket10.Profile = sketch12
pocket10.Length = 3
pocket10.Reversed = True

doc.recompute()
